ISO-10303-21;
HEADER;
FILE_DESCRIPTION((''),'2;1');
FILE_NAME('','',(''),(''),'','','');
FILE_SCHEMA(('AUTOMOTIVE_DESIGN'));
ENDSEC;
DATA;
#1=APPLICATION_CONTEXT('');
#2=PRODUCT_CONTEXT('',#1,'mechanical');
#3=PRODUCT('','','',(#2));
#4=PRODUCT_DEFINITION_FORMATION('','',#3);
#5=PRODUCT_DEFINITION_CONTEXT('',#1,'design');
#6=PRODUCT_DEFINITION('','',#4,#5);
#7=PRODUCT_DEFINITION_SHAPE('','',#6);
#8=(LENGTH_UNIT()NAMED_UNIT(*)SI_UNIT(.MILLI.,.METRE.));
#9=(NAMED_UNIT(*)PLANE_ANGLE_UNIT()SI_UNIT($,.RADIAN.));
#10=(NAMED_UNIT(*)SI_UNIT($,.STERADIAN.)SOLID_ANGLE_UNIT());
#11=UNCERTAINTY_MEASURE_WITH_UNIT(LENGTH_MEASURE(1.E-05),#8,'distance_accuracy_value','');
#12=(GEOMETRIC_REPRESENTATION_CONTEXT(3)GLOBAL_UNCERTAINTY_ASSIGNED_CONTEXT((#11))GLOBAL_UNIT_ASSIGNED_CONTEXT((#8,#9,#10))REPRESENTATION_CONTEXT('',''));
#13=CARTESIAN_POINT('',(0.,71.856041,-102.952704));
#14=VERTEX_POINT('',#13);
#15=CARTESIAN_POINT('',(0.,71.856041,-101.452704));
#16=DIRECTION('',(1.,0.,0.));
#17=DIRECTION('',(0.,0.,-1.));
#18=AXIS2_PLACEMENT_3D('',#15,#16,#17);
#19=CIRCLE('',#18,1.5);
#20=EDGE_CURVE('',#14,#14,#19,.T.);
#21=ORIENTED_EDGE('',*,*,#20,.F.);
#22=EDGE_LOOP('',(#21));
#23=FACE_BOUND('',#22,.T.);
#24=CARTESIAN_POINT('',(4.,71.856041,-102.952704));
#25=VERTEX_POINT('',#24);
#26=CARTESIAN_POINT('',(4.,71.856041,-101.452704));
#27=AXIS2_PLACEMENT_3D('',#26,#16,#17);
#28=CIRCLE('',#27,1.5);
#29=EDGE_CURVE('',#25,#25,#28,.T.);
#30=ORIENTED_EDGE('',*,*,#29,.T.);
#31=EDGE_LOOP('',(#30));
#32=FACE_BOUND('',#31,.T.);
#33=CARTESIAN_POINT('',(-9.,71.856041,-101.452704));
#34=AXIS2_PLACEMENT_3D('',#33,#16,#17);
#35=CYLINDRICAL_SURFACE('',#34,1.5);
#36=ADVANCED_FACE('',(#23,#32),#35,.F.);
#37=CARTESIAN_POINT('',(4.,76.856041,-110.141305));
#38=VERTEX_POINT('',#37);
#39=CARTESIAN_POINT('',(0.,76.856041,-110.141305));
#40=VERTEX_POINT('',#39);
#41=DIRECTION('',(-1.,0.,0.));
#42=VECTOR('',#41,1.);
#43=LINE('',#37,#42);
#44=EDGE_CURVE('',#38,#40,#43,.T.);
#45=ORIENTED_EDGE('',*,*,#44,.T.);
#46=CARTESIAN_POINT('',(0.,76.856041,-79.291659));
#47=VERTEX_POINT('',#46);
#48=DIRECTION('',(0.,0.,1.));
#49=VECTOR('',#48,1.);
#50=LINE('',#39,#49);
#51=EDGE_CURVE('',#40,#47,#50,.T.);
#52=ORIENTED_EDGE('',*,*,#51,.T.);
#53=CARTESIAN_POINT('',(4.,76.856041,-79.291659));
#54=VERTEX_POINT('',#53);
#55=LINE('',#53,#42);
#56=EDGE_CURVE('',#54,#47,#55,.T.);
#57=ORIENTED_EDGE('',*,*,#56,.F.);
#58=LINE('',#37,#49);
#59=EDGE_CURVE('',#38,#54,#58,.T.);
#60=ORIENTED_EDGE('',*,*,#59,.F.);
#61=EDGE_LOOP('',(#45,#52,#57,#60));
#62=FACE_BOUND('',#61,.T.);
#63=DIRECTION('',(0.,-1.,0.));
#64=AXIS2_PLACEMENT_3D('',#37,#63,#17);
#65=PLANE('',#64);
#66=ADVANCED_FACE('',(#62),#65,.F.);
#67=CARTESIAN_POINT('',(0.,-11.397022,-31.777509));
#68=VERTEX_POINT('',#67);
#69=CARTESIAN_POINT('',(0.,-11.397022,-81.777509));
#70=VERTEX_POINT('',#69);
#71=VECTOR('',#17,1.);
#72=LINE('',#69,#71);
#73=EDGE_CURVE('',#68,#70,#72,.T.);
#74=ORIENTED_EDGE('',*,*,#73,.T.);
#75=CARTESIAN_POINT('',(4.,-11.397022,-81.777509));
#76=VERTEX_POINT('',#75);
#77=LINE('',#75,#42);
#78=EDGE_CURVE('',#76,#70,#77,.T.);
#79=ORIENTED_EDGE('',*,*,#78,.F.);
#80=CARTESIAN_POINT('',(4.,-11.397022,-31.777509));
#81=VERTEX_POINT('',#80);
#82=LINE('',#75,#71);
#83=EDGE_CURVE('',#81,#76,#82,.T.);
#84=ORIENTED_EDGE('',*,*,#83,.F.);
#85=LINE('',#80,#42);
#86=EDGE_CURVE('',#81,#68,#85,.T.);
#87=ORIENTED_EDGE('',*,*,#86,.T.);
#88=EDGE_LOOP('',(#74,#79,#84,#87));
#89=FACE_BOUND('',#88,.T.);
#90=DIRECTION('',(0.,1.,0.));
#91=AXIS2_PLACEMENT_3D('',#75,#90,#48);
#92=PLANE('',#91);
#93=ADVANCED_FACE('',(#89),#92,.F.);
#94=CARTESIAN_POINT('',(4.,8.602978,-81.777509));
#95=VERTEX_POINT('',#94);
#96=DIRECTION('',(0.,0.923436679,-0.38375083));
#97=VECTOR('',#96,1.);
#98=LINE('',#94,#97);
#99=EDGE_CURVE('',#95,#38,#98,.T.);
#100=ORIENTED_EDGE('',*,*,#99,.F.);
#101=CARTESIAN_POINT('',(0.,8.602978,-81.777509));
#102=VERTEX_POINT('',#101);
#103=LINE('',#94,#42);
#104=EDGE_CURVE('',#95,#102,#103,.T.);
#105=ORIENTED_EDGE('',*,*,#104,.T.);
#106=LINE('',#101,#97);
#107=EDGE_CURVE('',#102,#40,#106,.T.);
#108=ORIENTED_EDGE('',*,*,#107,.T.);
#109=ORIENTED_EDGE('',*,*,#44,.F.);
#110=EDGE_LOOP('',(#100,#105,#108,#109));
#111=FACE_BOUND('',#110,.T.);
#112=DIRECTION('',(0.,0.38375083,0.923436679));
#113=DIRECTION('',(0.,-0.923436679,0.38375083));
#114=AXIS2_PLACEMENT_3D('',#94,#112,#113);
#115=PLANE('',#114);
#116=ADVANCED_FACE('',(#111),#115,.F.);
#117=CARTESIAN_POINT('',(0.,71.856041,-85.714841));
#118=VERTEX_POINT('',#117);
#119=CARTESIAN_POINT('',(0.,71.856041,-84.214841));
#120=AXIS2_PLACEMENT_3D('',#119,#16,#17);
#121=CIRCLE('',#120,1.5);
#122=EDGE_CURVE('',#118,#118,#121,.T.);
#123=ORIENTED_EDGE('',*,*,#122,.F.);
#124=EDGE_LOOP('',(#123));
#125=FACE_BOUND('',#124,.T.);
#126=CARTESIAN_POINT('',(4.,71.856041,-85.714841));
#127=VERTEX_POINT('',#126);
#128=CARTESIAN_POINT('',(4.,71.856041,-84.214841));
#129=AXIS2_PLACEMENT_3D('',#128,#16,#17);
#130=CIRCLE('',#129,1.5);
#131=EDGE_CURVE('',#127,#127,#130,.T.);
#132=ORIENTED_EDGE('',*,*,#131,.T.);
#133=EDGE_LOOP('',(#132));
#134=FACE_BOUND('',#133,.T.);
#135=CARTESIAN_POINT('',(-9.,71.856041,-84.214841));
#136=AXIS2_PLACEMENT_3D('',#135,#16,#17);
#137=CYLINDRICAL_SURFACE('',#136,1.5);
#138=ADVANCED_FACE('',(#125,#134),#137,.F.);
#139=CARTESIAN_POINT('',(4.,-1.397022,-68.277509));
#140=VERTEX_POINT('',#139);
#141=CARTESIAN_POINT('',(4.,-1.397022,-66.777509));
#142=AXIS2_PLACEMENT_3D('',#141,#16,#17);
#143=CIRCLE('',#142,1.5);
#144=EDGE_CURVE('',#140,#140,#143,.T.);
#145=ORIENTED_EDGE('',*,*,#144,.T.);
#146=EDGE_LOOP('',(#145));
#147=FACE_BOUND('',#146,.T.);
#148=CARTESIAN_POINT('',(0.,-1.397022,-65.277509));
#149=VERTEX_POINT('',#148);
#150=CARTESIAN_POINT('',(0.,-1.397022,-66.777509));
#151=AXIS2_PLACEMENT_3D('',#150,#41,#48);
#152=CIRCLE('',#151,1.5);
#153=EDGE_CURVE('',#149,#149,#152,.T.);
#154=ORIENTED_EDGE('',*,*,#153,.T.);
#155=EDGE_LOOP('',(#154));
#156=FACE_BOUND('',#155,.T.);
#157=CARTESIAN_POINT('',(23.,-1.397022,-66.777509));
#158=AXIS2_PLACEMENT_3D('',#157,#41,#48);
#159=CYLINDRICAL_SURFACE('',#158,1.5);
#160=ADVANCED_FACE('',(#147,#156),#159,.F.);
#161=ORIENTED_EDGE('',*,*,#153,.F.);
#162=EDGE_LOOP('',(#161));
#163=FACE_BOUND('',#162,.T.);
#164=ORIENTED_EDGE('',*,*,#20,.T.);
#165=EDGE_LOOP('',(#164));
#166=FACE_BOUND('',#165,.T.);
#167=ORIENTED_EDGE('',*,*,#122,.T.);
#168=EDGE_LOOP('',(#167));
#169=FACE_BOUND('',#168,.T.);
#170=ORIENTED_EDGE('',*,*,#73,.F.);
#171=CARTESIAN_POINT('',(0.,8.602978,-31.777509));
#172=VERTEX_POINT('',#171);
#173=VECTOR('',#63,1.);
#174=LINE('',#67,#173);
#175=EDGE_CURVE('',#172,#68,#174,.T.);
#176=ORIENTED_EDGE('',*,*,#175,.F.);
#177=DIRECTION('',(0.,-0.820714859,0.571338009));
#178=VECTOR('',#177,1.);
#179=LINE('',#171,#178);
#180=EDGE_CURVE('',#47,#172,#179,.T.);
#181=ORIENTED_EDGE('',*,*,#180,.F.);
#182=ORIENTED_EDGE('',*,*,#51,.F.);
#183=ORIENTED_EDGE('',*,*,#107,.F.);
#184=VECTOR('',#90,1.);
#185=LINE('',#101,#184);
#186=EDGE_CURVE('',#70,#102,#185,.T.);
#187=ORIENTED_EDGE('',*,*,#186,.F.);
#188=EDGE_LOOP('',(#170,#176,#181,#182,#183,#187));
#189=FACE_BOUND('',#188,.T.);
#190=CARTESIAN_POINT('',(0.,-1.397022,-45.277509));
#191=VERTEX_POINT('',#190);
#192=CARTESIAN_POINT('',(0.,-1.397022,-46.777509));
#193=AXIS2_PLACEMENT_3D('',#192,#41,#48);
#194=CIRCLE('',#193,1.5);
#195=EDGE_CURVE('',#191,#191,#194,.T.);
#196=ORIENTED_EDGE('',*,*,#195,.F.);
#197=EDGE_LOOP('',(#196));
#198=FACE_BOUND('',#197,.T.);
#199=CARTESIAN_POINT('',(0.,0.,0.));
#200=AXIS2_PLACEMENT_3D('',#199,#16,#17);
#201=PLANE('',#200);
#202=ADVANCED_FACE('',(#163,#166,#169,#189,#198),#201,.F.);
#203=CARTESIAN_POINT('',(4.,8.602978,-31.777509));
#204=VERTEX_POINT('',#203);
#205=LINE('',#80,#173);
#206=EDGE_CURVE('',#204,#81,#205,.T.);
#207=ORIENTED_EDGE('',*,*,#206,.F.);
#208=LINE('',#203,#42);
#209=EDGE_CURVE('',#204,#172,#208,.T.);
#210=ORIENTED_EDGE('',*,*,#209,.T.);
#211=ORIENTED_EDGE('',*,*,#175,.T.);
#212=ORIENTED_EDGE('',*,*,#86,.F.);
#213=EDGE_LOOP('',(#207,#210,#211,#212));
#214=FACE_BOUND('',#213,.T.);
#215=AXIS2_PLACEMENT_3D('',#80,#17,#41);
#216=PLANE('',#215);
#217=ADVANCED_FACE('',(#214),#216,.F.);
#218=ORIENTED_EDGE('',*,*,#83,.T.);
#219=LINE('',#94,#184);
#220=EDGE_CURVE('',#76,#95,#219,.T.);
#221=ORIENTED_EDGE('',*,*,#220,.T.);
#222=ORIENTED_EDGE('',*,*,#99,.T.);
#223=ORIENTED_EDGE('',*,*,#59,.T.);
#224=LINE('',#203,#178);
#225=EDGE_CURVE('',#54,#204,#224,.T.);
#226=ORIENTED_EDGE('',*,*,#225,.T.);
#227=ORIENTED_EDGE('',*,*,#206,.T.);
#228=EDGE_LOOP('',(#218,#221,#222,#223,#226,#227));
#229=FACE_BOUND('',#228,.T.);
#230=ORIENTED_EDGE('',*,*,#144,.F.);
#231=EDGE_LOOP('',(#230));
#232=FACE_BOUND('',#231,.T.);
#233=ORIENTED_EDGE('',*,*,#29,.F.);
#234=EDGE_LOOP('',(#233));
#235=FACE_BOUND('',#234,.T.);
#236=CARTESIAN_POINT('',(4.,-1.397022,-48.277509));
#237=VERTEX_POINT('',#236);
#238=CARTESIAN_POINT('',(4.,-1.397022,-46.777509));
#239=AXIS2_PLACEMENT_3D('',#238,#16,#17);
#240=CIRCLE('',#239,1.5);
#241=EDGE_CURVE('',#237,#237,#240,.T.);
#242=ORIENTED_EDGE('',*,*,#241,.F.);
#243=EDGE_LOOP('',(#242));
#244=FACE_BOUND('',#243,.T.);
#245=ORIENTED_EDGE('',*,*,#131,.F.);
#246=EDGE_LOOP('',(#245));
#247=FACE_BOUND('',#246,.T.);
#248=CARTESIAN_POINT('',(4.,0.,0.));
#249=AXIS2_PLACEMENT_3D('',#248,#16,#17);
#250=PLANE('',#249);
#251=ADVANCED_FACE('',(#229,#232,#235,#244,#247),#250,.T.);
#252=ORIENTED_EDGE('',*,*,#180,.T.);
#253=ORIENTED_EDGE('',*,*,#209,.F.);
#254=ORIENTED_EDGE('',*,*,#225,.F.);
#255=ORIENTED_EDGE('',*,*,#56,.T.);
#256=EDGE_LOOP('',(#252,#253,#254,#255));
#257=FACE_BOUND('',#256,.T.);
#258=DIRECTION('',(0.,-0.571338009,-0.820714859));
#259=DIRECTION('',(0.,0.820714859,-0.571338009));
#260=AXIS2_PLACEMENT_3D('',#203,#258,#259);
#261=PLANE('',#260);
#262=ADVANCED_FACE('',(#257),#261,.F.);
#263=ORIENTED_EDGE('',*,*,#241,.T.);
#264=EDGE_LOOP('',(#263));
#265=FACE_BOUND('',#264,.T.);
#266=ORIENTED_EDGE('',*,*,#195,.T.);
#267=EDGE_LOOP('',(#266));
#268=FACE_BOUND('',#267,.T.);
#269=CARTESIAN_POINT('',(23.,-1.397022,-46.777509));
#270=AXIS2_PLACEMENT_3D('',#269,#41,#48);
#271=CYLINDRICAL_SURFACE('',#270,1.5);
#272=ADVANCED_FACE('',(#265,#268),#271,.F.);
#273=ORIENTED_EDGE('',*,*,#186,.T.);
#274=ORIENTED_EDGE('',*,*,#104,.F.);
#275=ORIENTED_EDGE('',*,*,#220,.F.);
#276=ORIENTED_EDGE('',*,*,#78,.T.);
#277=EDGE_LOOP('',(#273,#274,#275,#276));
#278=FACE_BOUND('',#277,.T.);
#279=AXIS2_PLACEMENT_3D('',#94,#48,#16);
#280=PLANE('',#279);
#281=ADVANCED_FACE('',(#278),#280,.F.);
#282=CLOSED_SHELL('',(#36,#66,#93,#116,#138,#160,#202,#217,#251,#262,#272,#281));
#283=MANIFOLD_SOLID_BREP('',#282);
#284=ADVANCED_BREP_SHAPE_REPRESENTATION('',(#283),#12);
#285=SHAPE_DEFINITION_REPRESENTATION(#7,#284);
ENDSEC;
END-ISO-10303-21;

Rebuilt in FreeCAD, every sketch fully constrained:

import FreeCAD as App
import Part
import Sketcher

V = App.Vector


def add_polygon(sketch, points):
    """Adds a closed chain of lines whose ends are joined by coincident constraints."""
    first, n = sketch.GeometryCount, len(points)
    for a, b in zip(points, points[1:] + points[:1]):
        sketch.addGeometry(Part.LineSegment(App.Vector(*a, 0), App.Vector(*b, 0)), False)
    for i in range(n):
        sketch.addConstraint(Sketcher.Constraint("Coincident", first + i, 2, first + (i + 1) % n, 1))

doc = App.newDocument("Part")
body = doc.addObject("PartDesign::Body", "Body")

sketch1 = body.newObject("Sketcher::SketchObject", "Sketch")
sketch1.AttachmentSupport = (doc.getObject("YZ_Plane"), [""])
sketch1.MapMode = "FlatFace"
add_polygon(sketch1, [(77, -79), (9, -32), (-11, -32), (-11, -82), (9, -82), (77, -110)])
sketch1.addConstraint([
    Sketcher.Constraint("Horizontal", 1),
    Sketcher.Constraint("Vertical", 2),
    Sketcher.Constraint("Horizontal", 3),
    Sketcher.Constraint("Vertical", 5),
    Sketcher.Constraint("Vertical", 0, 2, 3, 2),
    Sketcher.Constraint("DistanceX", 1, 2, 1, 1, 20.0),
    Sketcher.Constraint("DistanceY", 2, 2, 2, 1, 50.0),
    Sketcher.Constraint("Distance", 4, 73.912012),
    Sketcher.Constraint("DistanceY", 5, 1, 5, 2, 30.849646),
    Sketcher.Constraint("DistanceY", 0, 2, -1, 1, 31.777509),
    Sketcher.Constraint("DistanceX", -1, 1, 4, 2, 76.856041),
    Sketcher.Constraint("DistanceY", 5, 2, -1, 1, 79.291659),
])
pad1 = body.newObject("PartDesign::Pad", "Pad")
pad1.Profile = sketch1
pad1.Length = 4

sketch2 = body.newObject("Sketcher::SketchObject", "Sketch001")
sketch2.AttachmentSupport = (doc.getObject("YZ_Plane"), [""])
sketch2.MapMode = "FlatFace"
sketch2.AttachmentOffset = App.Placement(V(0, 0, 4), App.Rotation())
sketch2.addGeometry([
    Part.Circle(V(71.9, -84.2, 0), V(0, 0, 1), 1.5),
    Part.Circle(V(71.9, -101.5, 0), V(0, 0, 1), 1.5),
], False)
sketch2.addConstraint([
    Sketcher.Constraint("Equal", 0, 1),
    Sketcher.Constraint("Vertical", 0, 3, 1, 3),
    Sketcher.Constraint("Diameter", 0, 3.0),
    Sketcher.Constraint("DistanceX", -1, 1, 0, 3, 71.856041),
    Sketcher.Constraint("DistanceY", 0, 3, -1, 1, 84.214841),
    Sketcher.Constraint("DistanceY", 1, 3, -1, 1, 101.452704),
])
pocket1 = body.newObject("PartDesign::Pocket", "Pocket")
pocket1.Profile = sketch2
pocket1.Length = 13

sketch3 = body.newObject("Sketcher::SketchObject", "Sketch002")
sketch3.AttachmentSupport = (doc.getObject("YZ_Plane"), [""])
sketch3.MapMode = "FlatFace"
sketch3.addGeometry([
    Part.Circle(V(-1.4, -66.8, 0), V(0, 0, 1), 1.5),
    Part.Circle(V(-1.4, -46.8, 0), V(0, 0, 1), 1.5),
], False)
sketch3.addConstraint([
    Sketcher.Constraint("Equal", 0, 1),
    Sketcher.Constraint("Vertical", 0, 3, 1, 3),
    Sketcher.Constraint("Diameter", 0, 3.0),
    Sketcher.Constraint("DistanceY", 0, 3, 1, 3, 20.0),
    Sketcher.Constraint("DistanceY", 0, 3, -1, 1, 66.777509),
    Sketcher.Constraint("DistanceX", 0, 3, -1, 1, 1.397022),
])
pocket2 = body.newObject("PartDesign::Pocket", "Pocket001")
pocket2.Profile = sketch3
pocket2.Length = 23
pocket2.Reversed = True

doc.recompute()
